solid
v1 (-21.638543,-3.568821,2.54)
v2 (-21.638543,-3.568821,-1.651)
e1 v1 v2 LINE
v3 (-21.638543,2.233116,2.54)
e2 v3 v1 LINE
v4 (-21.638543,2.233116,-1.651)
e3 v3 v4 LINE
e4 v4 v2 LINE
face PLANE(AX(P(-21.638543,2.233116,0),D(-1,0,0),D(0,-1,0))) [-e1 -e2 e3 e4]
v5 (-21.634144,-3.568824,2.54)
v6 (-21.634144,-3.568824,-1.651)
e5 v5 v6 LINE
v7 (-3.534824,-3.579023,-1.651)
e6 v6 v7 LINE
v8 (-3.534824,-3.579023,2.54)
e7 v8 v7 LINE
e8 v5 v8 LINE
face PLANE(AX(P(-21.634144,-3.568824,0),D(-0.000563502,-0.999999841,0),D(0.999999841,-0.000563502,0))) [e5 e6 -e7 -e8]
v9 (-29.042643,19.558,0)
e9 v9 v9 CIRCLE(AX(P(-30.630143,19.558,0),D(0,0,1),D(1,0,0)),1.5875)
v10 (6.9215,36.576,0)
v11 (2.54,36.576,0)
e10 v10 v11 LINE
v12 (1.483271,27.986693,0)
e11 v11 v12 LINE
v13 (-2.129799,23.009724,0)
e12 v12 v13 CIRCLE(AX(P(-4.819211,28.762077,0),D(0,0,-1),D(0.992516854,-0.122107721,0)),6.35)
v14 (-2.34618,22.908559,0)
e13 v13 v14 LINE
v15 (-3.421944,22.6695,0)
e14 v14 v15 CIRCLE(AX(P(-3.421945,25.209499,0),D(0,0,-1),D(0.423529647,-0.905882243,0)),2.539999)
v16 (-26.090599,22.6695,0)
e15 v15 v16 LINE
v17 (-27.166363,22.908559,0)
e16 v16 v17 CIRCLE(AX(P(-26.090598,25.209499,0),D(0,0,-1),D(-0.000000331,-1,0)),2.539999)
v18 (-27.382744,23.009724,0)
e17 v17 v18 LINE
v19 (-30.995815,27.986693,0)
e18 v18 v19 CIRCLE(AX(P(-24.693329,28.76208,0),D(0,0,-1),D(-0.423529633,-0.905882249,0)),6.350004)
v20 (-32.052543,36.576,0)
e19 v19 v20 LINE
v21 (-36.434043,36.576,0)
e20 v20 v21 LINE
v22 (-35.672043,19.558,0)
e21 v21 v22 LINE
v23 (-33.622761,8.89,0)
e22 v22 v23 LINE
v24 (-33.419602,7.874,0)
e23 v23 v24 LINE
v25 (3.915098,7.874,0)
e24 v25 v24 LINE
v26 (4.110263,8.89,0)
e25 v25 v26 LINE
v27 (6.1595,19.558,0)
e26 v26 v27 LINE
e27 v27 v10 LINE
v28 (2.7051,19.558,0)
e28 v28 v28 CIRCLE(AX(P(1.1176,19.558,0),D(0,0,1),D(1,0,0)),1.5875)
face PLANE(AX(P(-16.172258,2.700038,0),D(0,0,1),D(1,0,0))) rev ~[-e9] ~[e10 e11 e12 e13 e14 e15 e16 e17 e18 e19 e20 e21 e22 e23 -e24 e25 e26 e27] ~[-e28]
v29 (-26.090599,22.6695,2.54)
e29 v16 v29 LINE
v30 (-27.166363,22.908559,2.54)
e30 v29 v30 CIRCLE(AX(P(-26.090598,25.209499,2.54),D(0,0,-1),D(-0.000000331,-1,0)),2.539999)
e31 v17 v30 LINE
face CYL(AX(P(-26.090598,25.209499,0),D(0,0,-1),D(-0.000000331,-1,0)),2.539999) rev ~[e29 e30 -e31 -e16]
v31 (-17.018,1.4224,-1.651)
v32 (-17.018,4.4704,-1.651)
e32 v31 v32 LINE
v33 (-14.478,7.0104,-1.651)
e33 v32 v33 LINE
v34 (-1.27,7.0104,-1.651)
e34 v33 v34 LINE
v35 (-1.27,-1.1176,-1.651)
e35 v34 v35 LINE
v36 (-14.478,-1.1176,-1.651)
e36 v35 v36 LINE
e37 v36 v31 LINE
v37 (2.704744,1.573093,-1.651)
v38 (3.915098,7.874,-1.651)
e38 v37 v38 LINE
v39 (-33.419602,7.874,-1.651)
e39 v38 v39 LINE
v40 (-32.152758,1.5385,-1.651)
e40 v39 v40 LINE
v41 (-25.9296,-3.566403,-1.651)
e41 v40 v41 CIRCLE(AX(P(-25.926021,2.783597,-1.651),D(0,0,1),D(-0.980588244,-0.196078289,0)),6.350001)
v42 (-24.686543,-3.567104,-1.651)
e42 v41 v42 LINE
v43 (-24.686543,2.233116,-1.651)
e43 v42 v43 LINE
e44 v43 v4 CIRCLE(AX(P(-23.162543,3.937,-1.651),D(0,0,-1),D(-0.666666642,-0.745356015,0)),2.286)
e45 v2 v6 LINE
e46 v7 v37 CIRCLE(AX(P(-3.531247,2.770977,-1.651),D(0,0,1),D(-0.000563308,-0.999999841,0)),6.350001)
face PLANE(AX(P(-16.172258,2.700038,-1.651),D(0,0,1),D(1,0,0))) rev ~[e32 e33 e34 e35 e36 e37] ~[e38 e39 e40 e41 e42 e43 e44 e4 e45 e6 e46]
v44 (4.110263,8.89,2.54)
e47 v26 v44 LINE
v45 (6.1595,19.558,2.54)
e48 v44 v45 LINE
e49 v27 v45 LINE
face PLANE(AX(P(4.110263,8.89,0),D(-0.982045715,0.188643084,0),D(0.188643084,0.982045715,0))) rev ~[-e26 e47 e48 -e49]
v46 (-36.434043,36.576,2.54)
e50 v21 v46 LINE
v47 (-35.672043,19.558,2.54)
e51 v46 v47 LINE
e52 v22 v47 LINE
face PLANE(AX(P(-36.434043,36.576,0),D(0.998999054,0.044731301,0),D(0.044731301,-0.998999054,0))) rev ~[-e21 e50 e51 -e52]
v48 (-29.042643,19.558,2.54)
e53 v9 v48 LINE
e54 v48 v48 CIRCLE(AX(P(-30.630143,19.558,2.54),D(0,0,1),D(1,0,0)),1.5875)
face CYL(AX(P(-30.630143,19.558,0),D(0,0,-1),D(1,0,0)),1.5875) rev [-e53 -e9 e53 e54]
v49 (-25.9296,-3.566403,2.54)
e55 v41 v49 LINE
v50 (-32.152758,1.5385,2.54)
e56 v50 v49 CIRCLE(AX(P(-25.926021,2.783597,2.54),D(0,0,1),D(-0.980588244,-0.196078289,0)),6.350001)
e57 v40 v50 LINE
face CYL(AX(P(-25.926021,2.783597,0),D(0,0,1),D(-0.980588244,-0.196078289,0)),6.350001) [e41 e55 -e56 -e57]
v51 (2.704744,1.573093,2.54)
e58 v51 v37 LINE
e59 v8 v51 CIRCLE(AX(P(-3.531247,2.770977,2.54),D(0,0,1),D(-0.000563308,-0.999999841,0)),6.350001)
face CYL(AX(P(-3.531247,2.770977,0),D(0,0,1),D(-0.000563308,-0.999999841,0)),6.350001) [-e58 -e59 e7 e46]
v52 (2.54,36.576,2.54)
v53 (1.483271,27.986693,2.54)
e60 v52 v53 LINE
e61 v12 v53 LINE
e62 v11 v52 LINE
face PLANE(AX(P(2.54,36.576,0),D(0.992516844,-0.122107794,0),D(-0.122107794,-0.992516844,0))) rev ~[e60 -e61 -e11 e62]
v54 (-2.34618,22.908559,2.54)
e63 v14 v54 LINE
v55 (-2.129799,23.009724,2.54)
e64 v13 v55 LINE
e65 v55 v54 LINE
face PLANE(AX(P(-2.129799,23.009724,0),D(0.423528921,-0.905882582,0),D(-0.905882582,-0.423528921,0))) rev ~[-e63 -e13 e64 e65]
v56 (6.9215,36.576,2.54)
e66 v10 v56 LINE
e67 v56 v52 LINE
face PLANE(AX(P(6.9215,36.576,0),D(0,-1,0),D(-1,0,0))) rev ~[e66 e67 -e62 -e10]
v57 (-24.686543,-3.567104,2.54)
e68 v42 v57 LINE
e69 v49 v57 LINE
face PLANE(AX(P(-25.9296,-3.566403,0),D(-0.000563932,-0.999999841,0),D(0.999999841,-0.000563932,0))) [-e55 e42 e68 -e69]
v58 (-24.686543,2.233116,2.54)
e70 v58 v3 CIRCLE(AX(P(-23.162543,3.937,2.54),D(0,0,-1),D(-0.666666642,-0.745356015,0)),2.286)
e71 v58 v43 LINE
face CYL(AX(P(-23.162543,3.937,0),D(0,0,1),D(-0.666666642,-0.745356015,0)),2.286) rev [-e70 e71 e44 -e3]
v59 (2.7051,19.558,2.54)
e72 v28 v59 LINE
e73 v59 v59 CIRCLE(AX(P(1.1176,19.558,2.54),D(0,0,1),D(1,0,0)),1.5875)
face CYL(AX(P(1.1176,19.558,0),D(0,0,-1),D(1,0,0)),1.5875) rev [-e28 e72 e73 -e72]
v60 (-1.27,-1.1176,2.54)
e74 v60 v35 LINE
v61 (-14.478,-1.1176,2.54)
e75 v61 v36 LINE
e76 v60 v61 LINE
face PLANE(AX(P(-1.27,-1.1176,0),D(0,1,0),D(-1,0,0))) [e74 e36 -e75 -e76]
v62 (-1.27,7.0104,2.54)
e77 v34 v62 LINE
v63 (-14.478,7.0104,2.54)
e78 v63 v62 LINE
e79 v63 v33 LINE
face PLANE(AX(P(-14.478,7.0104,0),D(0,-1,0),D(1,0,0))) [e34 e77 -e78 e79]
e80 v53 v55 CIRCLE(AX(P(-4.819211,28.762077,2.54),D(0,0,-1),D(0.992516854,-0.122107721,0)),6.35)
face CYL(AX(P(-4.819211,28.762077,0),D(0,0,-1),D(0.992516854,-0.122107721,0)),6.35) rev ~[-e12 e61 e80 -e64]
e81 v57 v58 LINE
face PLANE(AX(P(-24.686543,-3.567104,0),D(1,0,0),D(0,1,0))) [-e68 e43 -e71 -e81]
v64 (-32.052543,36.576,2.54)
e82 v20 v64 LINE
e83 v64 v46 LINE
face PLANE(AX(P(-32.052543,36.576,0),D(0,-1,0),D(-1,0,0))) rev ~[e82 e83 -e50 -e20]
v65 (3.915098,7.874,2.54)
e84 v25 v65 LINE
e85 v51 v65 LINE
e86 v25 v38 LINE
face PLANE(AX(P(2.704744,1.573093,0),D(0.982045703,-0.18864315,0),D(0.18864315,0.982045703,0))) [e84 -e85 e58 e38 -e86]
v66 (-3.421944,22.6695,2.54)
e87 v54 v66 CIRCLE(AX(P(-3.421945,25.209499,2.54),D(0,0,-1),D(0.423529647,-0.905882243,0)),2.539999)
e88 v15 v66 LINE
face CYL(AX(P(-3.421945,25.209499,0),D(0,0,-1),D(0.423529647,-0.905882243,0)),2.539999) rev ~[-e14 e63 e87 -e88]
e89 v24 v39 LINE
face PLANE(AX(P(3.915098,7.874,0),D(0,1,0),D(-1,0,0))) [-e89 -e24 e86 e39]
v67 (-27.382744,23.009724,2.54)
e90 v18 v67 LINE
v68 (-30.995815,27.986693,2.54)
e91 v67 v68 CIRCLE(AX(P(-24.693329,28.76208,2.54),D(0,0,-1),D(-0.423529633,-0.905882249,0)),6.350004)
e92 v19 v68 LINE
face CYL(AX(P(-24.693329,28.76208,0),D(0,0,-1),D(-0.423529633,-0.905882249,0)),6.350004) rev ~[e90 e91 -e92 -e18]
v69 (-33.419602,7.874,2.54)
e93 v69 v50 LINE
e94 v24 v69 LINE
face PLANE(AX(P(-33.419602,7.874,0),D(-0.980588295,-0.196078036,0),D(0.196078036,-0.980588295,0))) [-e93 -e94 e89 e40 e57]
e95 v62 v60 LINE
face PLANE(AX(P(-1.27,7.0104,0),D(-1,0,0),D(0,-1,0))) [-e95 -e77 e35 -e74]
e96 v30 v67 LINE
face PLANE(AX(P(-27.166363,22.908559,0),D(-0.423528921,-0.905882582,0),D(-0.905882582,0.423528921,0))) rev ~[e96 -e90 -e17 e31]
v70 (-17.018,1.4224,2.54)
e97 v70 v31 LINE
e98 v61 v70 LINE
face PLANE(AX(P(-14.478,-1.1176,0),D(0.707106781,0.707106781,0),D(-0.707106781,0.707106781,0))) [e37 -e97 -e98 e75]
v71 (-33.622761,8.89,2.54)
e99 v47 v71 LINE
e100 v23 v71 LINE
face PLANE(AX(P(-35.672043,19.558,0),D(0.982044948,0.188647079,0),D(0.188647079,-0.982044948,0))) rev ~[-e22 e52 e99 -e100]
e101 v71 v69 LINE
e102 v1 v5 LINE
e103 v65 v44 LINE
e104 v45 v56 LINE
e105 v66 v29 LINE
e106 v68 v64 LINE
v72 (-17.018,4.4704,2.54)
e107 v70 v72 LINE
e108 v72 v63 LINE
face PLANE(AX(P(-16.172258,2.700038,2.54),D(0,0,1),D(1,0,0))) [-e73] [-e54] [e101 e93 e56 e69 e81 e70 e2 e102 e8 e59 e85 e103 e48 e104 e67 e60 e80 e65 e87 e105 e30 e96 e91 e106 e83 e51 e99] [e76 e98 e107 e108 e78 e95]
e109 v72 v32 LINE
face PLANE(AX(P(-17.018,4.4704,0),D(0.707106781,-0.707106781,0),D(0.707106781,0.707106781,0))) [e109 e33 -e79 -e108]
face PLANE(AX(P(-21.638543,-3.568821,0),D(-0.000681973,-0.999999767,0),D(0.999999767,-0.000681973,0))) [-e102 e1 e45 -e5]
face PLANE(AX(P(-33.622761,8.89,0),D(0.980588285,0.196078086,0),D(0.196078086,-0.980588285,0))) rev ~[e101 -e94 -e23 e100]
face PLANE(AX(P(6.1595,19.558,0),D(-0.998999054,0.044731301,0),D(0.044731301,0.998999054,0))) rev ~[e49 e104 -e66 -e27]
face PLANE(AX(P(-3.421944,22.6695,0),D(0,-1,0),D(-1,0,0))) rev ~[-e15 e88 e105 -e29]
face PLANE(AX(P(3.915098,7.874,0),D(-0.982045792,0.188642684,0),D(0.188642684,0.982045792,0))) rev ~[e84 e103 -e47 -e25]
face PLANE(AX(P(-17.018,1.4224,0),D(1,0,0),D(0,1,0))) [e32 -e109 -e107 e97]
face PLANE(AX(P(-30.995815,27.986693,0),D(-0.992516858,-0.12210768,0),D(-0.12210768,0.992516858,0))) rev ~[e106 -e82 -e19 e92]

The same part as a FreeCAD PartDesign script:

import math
import FreeCAD as App
import Part
import Sketcher
from FreeCAD import Vector
Q = App.Units.Quantity

doc = App.newDocument("Part")
body = doc.addObject("PartDesign::Body", "Body")

sketch1 = body.newObject("Sketcher::SketchObject", "Sketch")
sketch1.AttachmentSupport = (doc.getObject("XY_Plane"), [""])
sketch1.MapMode = "FlatFace"
sketch1.addGeometry([
    Part.ArcOfCircle(Part.Circle(Vector(-3.42, 25.21, 0), Vector(0, 0, 1), 2.54), math.radians(-90), math.radians(-65)),
    Part.LineSegment(Vector(-3.42, 22.67, 0), Vector(-26.09, 22.67, 0)),
    Part.ArcOfCircle(Part.Circle(Vector(-26.09, 25.21, 0), Vector(0, 0, 1), 2.54), math.radians(-115), math.radians(-90)),
    Part.LineSegment(Vector(-27.17, 22.91, 0), Vector(-27.38, 23.01, 0)),
    Part.ArcOfCircle(Part.Circle(Vector(-24.69, 28.76, 0), Vector(0, 0, 1), 6.35), math.radians(-173), math.radians(-115)),
    Part.LineSegment(Vector(-31, 27.99, 0), Vector(-32.05, 36.58, 0)),
    Part.LineSegment(Vector(-32.05, 36.58, 0), Vector(-36.43, 36.58, 0)),
    Part.LineSegment(Vector(-36.43, 36.58, 0), Vector(-35.67, 19.56, 0)),
    Part.LineSegment(Vector(-35.67, 19.56, 0), Vector(-33.62, 8.89, 0)),
    Part.LineSegment(Vector(-33.62, 8.89, 0), Vector(-33.42, 7.87, 0)),
    Part.LineSegment(Vector(-33.42, 7.87, 0), Vector(3.92, 7.87, 0)),
    Part.LineSegment(Vector(3.92, 7.87, 0), Vector(4.11, 8.89, 0)),
    Part.LineSegment(Vector(4.11, 8.89, 0), Vector(6.16, 19.56, 0)),
    Part.LineSegment(Vector(6.16, 19.56, 0), Vector(6.92, 36.58, 0)),
    Part.LineSegment(Vector(6.92, 36.58, 0), Vector(2.54, 36.58, 0)),
    Part.LineSegment(Vector(2.54, 36.58, 0), Vector(1.48, 27.99, 0)),
    Part.ArcOfCircle(Part.Circle(Vector(-4.82, 28.76, 0), Vector(0, 0, 1), 6.35), math.radians(-65), math.radians(-7)),
    Part.LineSegment(Vector(-2.13, 23.01, 0), Vector(-2.35, 22.91, 0)),
    Part.Circle(Vector(-30.63, 19.56, 0), Vector(0, 0, 1), 1.59),
    Part.Circle(Vector(1.12, 19.56, 0), Vector(0, 0, 1), 1.59),
], False)
sketch1.addConstraint([
    Sketcher.Constraint("Tangent", 0, 1, 1, 1),
    Sketcher.Constraint("Tangent", 1, 2, 2, 2),
    Sketcher.Constraint("Tangent", 2, 1, 3, 1),
    Sketcher.Constraint("Tangent", 3, 2, 4, 2),
    Sketcher.Constraint("Tangent", 4, 1, 5, 1),
    Sketcher.Constraint("Coincident", 5, 2, 6, 1),
    Sketcher.Constraint("Coincident", 6, 2, 7, 1),
    Sketcher.Constraint("Coincident", 7, 2, 8, 1),
    Sketcher.Constraint("Coincident", 8, 2, 9, 1),
    Sketcher.Constraint("Coincident", 9, 2, 10, 1),
    Sketcher.Constraint("Coincident", 10, 2, 11, 1),
    Sketcher.Constraint("Coincident", 11, 2, 12, 1),
    Sketcher.Constraint("Coincident", 12, 2, 13, 1),
    Sketcher.Constraint("Coincident", 13, 2, 14, 1),
    Sketcher.Constraint("Coincident", 14, 2, 15, 1),
    Sketcher.Constraint("Tangent", 15, 2, 16, 2),
    Sketcher.Constraint("Tangent", 16, 1, 17, 1),
    Sketcher.Constraint("Tangent", 17, 2, 0, 2),
    Sketcher.Constraint("Horizontal", 1),
    Sketcher.Constraint("Horizontal", 6),
    Sketcher.Constraint("Horizontal", 10),
    Sketcher.Constraint("Horizontal", 14),
    Sketcher.Constraint("Equal", 0, 2),
    Sketcher.Constraint("Equal", 18, 19),
    Sketcher.Constraint("Parallel", 11, 12),
    Sketcher.Constraint("Horizontal", 18, 3, 19, 3),
    Sketcher.Constraint("Horizontal", 19, 3, 7, 2),
    Sketcher.Constraint("Horizontal", 8, 2, 11, 2),
    Sketcher.Constraint("Horizontal", 7, 2, 12, 2),
    Sketcher.Constraint("Horizontal", 6, 2, 13, 2),
    Sketcher.Constraint("Horizontal", 4, 1, 15, 2),
    Sketcher.Constraint("Horizontal", 3, 2, 16, 1),
    Sketcher.Constraint("Horizontal", 2, 1, 17, 2),
    Sketcher.Constraint("Equal", 6, 14),
    Sketcher.Constraint("Equal", 7, 13),
    Sketcher.Constraint("Equal", 5, 15),
    Sketcher.Constraint("Radius", 0, Q("0.1 in")),
    Sketcher.Constraint("Radius", 4, Q("0.2500002 in")),
    Sketcher.Constraint("Diameter", 18, Q("0.125 in")),
    Sketcher.Constraint("DistanceX", -1, 1, 14, 2, Q("0.1 in")),
    Sketcher.Constraint("DistanceY", -1, 1, 18, 3, Q("0.77 in")),
    Sketcher.Constraint("DistanceY", -1, 1, 5, 2, Q("1.44 in")),
    Sketcher.Constraint("DistanceY", -1, 1, 8, 2, Q("0.35 in")),
    Sketcher.Constraint("DistanceY", -1, 1, 9, 2, Q("0.31 in")),
    Sketcher.Constraint("DistanceX", 12, 2, 13, 2, Q("0.03 in")),
    Sketcher.Constraint("DistanceX", 6, 2, 6, 1, Q("0.1725 in")),
    Sketcher.Constraint("DistanceX", -1, 1, 19, 3, Q("0.044 in")),
    Sketcher.Constraint("DistanceX", 10, 1, 10, 2, Q("37.3347 mm")),
    Sketcher.Constraint("DistanceY", -1, 1, 0, 3, Q("0.9925 in")),
    Sketcher.Constraint("DistanceX", 7, 2, 18, 3, Q("0.1985 in")),
    Sketcher.Constraint("DistanceX", 2, 3, -1, 1, Q("26.090598 mm")),
    Sketcher.Constraint("DistanceX", 9, 2, -1, 1, Q("33.419602 mm")),
    Sketcher.Constraint("DistanceX", 16, 1, -1, 1, Q("2.129799 mm")),
    Sketcher.Constraint("DistanceX", 1, 2, 1, 1, Q("22.668655 mm")),
    Sketcher.Constraint("DistanceX", 4, 3, -1, 1, Q("24.693329 mm")),
    Sketcher.Constraint("DistanceX", 8, 2, -1, 1, Q("33.622761 mm")),
])
pad1 = body.newObject("PartDesign::Pad", "Pad")
pad1.Profile = sketch1
pad1.Length = Q("0.1 in")

sketch2 = body.newObject("Sketcher::SketchObject", "Sketch001")
sketch2.AttachmentSupport = (doc.getObject("XY_Plane"), [""])
sketch2.MapMode = "FlatFace"
sketch2.addGeometry([
    Part.LineSegment(Vector(2.7047, 1.5731, 0), Vector(3.9151, 7.874, 0)),
    Part.LineSegment(Vector(3.9151, 7.874, 0), Vector(-33.4196, 7.874, 0)),
    Part.LineSegment(Vector(-33.4196, 7.874, 0), Vector(-32.1528, 1.5385, 0)),
    Part.ArcOfCircle(Part.Circle(Vector(-25.926, 2.7836, 0), Vector(0, 0, 1), 6.35), math.radians(-169), math.radians(-90)),
    Part.LineSegment(Vector(-25.9296, -3.5664, 0), Vector(-24.6865, -3.5671, 0)),
    Part.LineSegment(Vector(-24.6865, -3.5671, 0), Vector(-24.6865, 2.2331, 0)),
    Part.ArcOfCircle(Part.Circle(Vector(-23.1625, 3.937, 0), Vector(0, 0, 1), 2.286), math.radians(-48), math.radians(228)),
    Part.LineSegment(Vector(-21.6385, 2.2331, 0), Vector(-21.6385, -3.5688, 0)),
    Part.LineSegment(Vector(-21.6385, -3.5688, 0), Vector(-21.6341, -3.5688, 0)),
    Part.LineSegment(Vector(-21.6341, -3.5688, 0), Vector(-3.5348, -3.579, 0)),
    Part.ArcOfCircle(Part.Circle(Vector(-3.5312, 2.771, 0), Vector(0, 0, 1), 6.35), math.radians(-90), math.radians(-11)),
    Part.LineSegment(Vector(-14.478, 7.0104, 0), Vector(-1.27, 7.0104, 0)),
    Part.LineSegment(Vector(-1.27, 7.0104, 0), Vector(-1.27, -1.1176, 0)),
    Part.LineSegment(Vector(-1.27, -1.1176, 0), Vector(-14.478, -1.1176, 0)),
    Part.LineSegment(Vector(-14.478, -1.1176, 0), Vector(-17.018, 1.4224, 0)),
    Part.LineSegment(Vector(-17.018, 1.4224, 0), Vector(-17.018, 4.4704, 0)),
    Part.LineSegment(Vector(-17.018, 4.4704, 0), Vector(-14.478, 7.0104, 0)),
], False)
sketch2.addConstraint([
    Sketcher.Constraint("Coincident", 0, 2, 1, 1),
    Sketcher.Constraint("Coincident", 1, 2, 2, 1),
    Sketcher.Constraint("Tangent", 2, 2, 3, 1),
    Sketcher.Constraint("Tangent", 3, 2, 4, 1),
    Sketcher.Constraint("Coincident", 4, 2, 5, 1),
    Sketcher.Constraint("Coincident", 5, 2, 6, 2),
    Sketcher.Constraint("Coincident", 6, 1, 7, 1),
    Sketcher.Constraint("Coincident", 7, 2, 8, 1),
    Sketcher.Constraint("Coincident", 8, 2, 9, 1),
    Sketcher.Constraint("Tangent", 9, 2, 10, 1),
    Sketcher.Constraint("Tangent", 10, 2, 0, 1),
    Sketcher.Constraint("Coincident", 11, 2, 12, 1),
    Sketcher.Constraint("Coincident", 12, 2, 13, 1),
    Sketcher.Constraint("Coincident", 13, 2, 14, 1),
    Sketcher.Constraint("Coincident", 14, 2, 15, 1),
    Sketcher.Constraint("Coincident", 15, 2, 16, 1),
    Sketcher.Constraint("Coincident", 16, 2, 11, 1),
    Sketcher.Constraint("Horizontal", 1),
    Sketcher.Constraint("Vertical", 5),
    Sketcher.Constraint("Vertical", 7),
    Sketcher.Constraint("Horizontal", 11),
    Sketcher.Constraint("Vertical", 12),
    Sketcher.Constraint("Horizontal", 13),
    Sketcher.Constraint("Vertical", 15),
    Sketcher.Constraint("Equal", 3, 10),
    Sketcher.Constraint("Parallel", 4, 9),
    Sketcher.Constraint("Perpendicular", 14, 16),
    Sketcher.Constraint("Horizontal", 5, 2, 6, 1),
    Sketcher.Constraint("Vertical", 13, 2, 16, 2),
    Sketcher.Constraint("Equal", 14, 16),
    Sketcher.Constraint("Radius", 3, Q("0.2500001 in")),
    Sketcher.Constraint("Radius", 6, Q("0.09 in")),
    Sketcher.Constraint("DistanceX", 11, 1, 11, 2, Q("0.52 in")),
    Sketcher.Constraint("DistanceY", 12, 2, 12, 1, Q("0.32 in")),
    Sketcher.Constraint("DistanceY", 15, 1, 15, 2, Q("0.12 in")),
    Sketcher.Constraint("DistanceY", -1, 1, 0, 2, Q("0.31 in")),
    Sketcher.Constraint("DistanceX", 11, 2, -1, 1, Q("0.05 in")),
    Sketcher.Constraint("DistanceX", 4, 2, 6, 3, Q("0.06 in")),
    Sketcher.Constraint("DistanceY", -1, 1, 6, 3, Q("0.155 in")),
    Sketcher.Constraint("DistanceY", -1, 1, 11, 2, Q("0.276 in")),
    Sketcher.Constraint("DistanceX", 1, 2, 1, 1, Q("37.3347 mm")),
    Sketcher.Constraint("Distance", 8, Q("0.004399 mm")),
    Sketcher.Constraint("DistanceY", 5, 1, 5, 2, Q("5.80022 mm")),
    Sketcher.Constraint("DistanceX", -1, 1, 0, 2, Q("3.915098 mm")),
    Sketcher.Constraint("DistanceY", -1, 1, 2, 2, Q("1.5385 mm")),
    Sketcher.Constraint("DistanceX", 3, 2, -1, 1, Q("25.9296 mm")),
    Sketcher.Constraint("DistanceY", 7, 2, 7, 1, Q("5.801937 mm")),
    Sketcher.Constraint("DistanceX", 3, 3, 6, 3, Q("2.763478 mm")),
    Sketcher.Constraint("DistanceY", 10, 3, 3, 3, Q("0.012621 mm")),
    Sketcher.Constraint("DistanceX", 2, 2, 10, 3, Q("28.621511 mm")),
])
pad2 = body.newObject("PartDesign::Pad", "Pad001")
pad2.Profile = sketch2
pad2.Length = Q("0.1 in")

sketch3 = body.newObject("Sketcher::SketchObject", "Sketch002")
sketch3.AttachmentSupport = (doc.getObject("XY_Plane"), [""])
sketch3.MapMode = "FlatFace"
sketch3.addGeometry([
    Part.LineSegment(Vector(2.704744, 1.573093, 0), Vector(3.915098, 7.874, 0)),
    Part.LineSegment(Vector(3.915098, 7.874, 0), Vector(-33.419602, 7.874, 0)),
    Part.LineSegment(Vector(-33.419602, 7.874, 0), Vector(-32.152758, 1.5385, 0)),
    Part.ArcOfCircle(Part.Circle(Vector(-25.926021, 2.783597, 0), Vector(0, 0, 1), 6.350001), math.radians(-168.692279), math.radians(-90.032291)),
    Part.LineSegment(Vector(-25.9296, -3.566403, 0), Vector(-24.686543, -3.567104, 0)),
    Part.LineSegment(Vector(-24.686543, -3.567104, 0), Vector(-24.686543, 2.233116, 0)),
    Part.ArcOfCircle(Part.Circle(Vector(-23.162543, 3.937, 0), Vector(0, 0, 1), 2.286), math.radians(-48.189687), math.radians(228.189687)),
    Part.LineSegment(Vector(-21.638543, 2.233116, 0), Vector(-21.638543, -3.568821, 0)),
    Part.LineSegment(Vector(-21.638543, -3.568821, 0), Vector(-21.634144, -3.568824, 0)),
    Part.LineSegment(Vector(-21.634144, -3.568824, 0), Vector(-3.534824, -3.579023, 0)),
    Part.ArcOfCircle(Part.Circle(Vector(-3.531247, 2.770977, 0), Vector(0, 0, 1), 6.350001), math.radians(-90.032275), math.radians(-10.873607)),
    Part.LineSegment(Vector(-14.478, 7.0104, 0), Vector(-1.27, 7.0104, 0)),
    Part.LineSegment(Vector(-1.27, 7.0104, 0), Vector(-1.27, -1.1176, 0)),
    Part.LineSegment(Vector(-1.27, -1.1176, 0), Vector(-14.478, -1.1176, 0)),
    Part.LineSegment(Vector(-14.478, -1.1176, 0), Vector(-17.018, 1.4224, 0)),
    Part.LineSegment(Vector(-17.018, 1.4224, 0), Vector(-17.018, 4.4704, 0)),
    Part.LineSegment(Vector(-17.018, 4.4704, 0), Vector(-14.478, 7.0104, 0)),
], False)
sketch3.addConstraint([
    Sketcher.Constraint("Coincident", 0, 2, 1, 1),
    Sketcher.Constraint("Coincident", 1, 2, 2, 1),
    Sketcher.Constraint("Tangent", 2, 2, 3, 1),
    Sketcher.Constraint("Tangent", 3, 2, 4, 1),
    Sketcher.Constraint("Coincident", 4, 2, 5, 1),
    Sketcher.Constraint("Coincident", 5, 2, 6, 2),
    Sketcher.Constraint("Coincident", 6, 1, 7, 1),
    Sketcher.Constraint("Coincident", 7, 2, 8, 1),
    Sketcher.Constraint("Coincident", 8, 2, 9, 1),
    Sketcher.Constraint("Tangent", 9, 2, 10, 1),
    Sketcher.Constraint("Tangent", 10, 2, 0, 1),
    Sketcher.Constraint("Coincident", 11, 2, 12, 1),
    Sketcher.Constraint("Coincident", 12, 2, 13, 1),
    Sketcher.Constraint("Coincident", 13, 2, 14, 1),
    Sketcher.Constraint("Coincident", 14, 2, 15, 1),
    Sketcher.Constraint("Coincident", 15, 2, 16, 1),
    Sketcher.Constraint("Coincident", 16, 2, 11, 1),
    Sketcher.Constraint("Horizontal", 1),
    Sketcher.Constraint("Vertical", 5),
    Sketcher.Constraint("Vertical", 7),
    Sketcher.Constraint("Horizontal", 11),
    Sketcher.Constraint("Vertical", 12),
    Sketcher.Constraint("Horizontal", 13),
    Sketcher.Constraint("Vertical", 15),
    Sketcher.Constraint("Equal", 3, 10),
    Sketcher.Constraint("Parallel", 4, 9),
    Sketcher.Constraint("Perpendicular", 14, 16),
    Sketcher.Constraint("Horizontal", 5, 2, 6, 1),
    Sketcher.Constraint("Vertical", 13, 2, 16, 2),
    Sketcher.Constraint("Equal", 14, 16),
    Sketcher.Constraint("Radius", 3, Q("0.2500001 in")),
    Sketcher.Constraint("Radius", 6, Q("0.09 in")),
    Sketcher.Constraint("DistanceX", 11, 1, 11, 2, Q("0.52 in")),
    Sketcher.Constraint("DistanceY", 12, 2, 12, 1, Q("0.32 in")),
    Sketcher.Constraint("DistanceY", 15, 1, 15, 2, Q("0.12 in")),
    Sketcher.Constraint("DistanceY", -1, 1, 0, 2, Q("0.31 in")),
    Sketcher.Constraint("DistanceX", 11, 2, -1, 1, Q("0.05 in")),
    Sketcher.Constraint("DistanceX", 4, 2, 6, 3, Q("0.06 in")),
    Sketcher.Constraint("DistanceY", -1, 1, 6, 3, Q("0.155 in")),
    Sketcher.Constraint("DistanceY", -1, 1, 11, 2, Q("0.276 in")),
    Sketcher.Constraint("DistanceX", 1, 2, 1, 1, Q("37.3347 mm")),
    Sketcher.Constraint("Distance", 8, Q("0.004399 mm")),
    Sketcher.Constraint("DistanceY", 5, 1, 5, 2, Q("5.80022 mm")),
    Sketcher.Constraint("DistanceX", -1, 1, 0, 2, Q("3.915098 mm")),
    Sketcher.Constraint("DistanceY", -1, 1, 2, 2, Q("1.5385 mm")),
    Sketcher.Constraint("DistanceX", 3, 2, -1, 1, Q("25.9296 mm")),
    Sketcher.Constraint("DistanceY", 7, 2, 7, 1, Q("5.801937 mm")),
    Sketcher.Constraint("DistanceX", 3, 3, 6, 3, Q("2.763478 mm")),
    Sketcher.Constraint("DistanceY", 10, 3, 3, 3, Q("0.012621 mm")),
    Sketcher.Constraint("DistanceX", 2, 2, 10, 3, Q("28.621511 mm")),
])
pad3 = body.newObject("PartDesign::Pad", "Pad002")
pad3.Profile = sketch3
pad3.Length = Q("0.065 in")
pad3.Reversed = True

doc.recompute()
